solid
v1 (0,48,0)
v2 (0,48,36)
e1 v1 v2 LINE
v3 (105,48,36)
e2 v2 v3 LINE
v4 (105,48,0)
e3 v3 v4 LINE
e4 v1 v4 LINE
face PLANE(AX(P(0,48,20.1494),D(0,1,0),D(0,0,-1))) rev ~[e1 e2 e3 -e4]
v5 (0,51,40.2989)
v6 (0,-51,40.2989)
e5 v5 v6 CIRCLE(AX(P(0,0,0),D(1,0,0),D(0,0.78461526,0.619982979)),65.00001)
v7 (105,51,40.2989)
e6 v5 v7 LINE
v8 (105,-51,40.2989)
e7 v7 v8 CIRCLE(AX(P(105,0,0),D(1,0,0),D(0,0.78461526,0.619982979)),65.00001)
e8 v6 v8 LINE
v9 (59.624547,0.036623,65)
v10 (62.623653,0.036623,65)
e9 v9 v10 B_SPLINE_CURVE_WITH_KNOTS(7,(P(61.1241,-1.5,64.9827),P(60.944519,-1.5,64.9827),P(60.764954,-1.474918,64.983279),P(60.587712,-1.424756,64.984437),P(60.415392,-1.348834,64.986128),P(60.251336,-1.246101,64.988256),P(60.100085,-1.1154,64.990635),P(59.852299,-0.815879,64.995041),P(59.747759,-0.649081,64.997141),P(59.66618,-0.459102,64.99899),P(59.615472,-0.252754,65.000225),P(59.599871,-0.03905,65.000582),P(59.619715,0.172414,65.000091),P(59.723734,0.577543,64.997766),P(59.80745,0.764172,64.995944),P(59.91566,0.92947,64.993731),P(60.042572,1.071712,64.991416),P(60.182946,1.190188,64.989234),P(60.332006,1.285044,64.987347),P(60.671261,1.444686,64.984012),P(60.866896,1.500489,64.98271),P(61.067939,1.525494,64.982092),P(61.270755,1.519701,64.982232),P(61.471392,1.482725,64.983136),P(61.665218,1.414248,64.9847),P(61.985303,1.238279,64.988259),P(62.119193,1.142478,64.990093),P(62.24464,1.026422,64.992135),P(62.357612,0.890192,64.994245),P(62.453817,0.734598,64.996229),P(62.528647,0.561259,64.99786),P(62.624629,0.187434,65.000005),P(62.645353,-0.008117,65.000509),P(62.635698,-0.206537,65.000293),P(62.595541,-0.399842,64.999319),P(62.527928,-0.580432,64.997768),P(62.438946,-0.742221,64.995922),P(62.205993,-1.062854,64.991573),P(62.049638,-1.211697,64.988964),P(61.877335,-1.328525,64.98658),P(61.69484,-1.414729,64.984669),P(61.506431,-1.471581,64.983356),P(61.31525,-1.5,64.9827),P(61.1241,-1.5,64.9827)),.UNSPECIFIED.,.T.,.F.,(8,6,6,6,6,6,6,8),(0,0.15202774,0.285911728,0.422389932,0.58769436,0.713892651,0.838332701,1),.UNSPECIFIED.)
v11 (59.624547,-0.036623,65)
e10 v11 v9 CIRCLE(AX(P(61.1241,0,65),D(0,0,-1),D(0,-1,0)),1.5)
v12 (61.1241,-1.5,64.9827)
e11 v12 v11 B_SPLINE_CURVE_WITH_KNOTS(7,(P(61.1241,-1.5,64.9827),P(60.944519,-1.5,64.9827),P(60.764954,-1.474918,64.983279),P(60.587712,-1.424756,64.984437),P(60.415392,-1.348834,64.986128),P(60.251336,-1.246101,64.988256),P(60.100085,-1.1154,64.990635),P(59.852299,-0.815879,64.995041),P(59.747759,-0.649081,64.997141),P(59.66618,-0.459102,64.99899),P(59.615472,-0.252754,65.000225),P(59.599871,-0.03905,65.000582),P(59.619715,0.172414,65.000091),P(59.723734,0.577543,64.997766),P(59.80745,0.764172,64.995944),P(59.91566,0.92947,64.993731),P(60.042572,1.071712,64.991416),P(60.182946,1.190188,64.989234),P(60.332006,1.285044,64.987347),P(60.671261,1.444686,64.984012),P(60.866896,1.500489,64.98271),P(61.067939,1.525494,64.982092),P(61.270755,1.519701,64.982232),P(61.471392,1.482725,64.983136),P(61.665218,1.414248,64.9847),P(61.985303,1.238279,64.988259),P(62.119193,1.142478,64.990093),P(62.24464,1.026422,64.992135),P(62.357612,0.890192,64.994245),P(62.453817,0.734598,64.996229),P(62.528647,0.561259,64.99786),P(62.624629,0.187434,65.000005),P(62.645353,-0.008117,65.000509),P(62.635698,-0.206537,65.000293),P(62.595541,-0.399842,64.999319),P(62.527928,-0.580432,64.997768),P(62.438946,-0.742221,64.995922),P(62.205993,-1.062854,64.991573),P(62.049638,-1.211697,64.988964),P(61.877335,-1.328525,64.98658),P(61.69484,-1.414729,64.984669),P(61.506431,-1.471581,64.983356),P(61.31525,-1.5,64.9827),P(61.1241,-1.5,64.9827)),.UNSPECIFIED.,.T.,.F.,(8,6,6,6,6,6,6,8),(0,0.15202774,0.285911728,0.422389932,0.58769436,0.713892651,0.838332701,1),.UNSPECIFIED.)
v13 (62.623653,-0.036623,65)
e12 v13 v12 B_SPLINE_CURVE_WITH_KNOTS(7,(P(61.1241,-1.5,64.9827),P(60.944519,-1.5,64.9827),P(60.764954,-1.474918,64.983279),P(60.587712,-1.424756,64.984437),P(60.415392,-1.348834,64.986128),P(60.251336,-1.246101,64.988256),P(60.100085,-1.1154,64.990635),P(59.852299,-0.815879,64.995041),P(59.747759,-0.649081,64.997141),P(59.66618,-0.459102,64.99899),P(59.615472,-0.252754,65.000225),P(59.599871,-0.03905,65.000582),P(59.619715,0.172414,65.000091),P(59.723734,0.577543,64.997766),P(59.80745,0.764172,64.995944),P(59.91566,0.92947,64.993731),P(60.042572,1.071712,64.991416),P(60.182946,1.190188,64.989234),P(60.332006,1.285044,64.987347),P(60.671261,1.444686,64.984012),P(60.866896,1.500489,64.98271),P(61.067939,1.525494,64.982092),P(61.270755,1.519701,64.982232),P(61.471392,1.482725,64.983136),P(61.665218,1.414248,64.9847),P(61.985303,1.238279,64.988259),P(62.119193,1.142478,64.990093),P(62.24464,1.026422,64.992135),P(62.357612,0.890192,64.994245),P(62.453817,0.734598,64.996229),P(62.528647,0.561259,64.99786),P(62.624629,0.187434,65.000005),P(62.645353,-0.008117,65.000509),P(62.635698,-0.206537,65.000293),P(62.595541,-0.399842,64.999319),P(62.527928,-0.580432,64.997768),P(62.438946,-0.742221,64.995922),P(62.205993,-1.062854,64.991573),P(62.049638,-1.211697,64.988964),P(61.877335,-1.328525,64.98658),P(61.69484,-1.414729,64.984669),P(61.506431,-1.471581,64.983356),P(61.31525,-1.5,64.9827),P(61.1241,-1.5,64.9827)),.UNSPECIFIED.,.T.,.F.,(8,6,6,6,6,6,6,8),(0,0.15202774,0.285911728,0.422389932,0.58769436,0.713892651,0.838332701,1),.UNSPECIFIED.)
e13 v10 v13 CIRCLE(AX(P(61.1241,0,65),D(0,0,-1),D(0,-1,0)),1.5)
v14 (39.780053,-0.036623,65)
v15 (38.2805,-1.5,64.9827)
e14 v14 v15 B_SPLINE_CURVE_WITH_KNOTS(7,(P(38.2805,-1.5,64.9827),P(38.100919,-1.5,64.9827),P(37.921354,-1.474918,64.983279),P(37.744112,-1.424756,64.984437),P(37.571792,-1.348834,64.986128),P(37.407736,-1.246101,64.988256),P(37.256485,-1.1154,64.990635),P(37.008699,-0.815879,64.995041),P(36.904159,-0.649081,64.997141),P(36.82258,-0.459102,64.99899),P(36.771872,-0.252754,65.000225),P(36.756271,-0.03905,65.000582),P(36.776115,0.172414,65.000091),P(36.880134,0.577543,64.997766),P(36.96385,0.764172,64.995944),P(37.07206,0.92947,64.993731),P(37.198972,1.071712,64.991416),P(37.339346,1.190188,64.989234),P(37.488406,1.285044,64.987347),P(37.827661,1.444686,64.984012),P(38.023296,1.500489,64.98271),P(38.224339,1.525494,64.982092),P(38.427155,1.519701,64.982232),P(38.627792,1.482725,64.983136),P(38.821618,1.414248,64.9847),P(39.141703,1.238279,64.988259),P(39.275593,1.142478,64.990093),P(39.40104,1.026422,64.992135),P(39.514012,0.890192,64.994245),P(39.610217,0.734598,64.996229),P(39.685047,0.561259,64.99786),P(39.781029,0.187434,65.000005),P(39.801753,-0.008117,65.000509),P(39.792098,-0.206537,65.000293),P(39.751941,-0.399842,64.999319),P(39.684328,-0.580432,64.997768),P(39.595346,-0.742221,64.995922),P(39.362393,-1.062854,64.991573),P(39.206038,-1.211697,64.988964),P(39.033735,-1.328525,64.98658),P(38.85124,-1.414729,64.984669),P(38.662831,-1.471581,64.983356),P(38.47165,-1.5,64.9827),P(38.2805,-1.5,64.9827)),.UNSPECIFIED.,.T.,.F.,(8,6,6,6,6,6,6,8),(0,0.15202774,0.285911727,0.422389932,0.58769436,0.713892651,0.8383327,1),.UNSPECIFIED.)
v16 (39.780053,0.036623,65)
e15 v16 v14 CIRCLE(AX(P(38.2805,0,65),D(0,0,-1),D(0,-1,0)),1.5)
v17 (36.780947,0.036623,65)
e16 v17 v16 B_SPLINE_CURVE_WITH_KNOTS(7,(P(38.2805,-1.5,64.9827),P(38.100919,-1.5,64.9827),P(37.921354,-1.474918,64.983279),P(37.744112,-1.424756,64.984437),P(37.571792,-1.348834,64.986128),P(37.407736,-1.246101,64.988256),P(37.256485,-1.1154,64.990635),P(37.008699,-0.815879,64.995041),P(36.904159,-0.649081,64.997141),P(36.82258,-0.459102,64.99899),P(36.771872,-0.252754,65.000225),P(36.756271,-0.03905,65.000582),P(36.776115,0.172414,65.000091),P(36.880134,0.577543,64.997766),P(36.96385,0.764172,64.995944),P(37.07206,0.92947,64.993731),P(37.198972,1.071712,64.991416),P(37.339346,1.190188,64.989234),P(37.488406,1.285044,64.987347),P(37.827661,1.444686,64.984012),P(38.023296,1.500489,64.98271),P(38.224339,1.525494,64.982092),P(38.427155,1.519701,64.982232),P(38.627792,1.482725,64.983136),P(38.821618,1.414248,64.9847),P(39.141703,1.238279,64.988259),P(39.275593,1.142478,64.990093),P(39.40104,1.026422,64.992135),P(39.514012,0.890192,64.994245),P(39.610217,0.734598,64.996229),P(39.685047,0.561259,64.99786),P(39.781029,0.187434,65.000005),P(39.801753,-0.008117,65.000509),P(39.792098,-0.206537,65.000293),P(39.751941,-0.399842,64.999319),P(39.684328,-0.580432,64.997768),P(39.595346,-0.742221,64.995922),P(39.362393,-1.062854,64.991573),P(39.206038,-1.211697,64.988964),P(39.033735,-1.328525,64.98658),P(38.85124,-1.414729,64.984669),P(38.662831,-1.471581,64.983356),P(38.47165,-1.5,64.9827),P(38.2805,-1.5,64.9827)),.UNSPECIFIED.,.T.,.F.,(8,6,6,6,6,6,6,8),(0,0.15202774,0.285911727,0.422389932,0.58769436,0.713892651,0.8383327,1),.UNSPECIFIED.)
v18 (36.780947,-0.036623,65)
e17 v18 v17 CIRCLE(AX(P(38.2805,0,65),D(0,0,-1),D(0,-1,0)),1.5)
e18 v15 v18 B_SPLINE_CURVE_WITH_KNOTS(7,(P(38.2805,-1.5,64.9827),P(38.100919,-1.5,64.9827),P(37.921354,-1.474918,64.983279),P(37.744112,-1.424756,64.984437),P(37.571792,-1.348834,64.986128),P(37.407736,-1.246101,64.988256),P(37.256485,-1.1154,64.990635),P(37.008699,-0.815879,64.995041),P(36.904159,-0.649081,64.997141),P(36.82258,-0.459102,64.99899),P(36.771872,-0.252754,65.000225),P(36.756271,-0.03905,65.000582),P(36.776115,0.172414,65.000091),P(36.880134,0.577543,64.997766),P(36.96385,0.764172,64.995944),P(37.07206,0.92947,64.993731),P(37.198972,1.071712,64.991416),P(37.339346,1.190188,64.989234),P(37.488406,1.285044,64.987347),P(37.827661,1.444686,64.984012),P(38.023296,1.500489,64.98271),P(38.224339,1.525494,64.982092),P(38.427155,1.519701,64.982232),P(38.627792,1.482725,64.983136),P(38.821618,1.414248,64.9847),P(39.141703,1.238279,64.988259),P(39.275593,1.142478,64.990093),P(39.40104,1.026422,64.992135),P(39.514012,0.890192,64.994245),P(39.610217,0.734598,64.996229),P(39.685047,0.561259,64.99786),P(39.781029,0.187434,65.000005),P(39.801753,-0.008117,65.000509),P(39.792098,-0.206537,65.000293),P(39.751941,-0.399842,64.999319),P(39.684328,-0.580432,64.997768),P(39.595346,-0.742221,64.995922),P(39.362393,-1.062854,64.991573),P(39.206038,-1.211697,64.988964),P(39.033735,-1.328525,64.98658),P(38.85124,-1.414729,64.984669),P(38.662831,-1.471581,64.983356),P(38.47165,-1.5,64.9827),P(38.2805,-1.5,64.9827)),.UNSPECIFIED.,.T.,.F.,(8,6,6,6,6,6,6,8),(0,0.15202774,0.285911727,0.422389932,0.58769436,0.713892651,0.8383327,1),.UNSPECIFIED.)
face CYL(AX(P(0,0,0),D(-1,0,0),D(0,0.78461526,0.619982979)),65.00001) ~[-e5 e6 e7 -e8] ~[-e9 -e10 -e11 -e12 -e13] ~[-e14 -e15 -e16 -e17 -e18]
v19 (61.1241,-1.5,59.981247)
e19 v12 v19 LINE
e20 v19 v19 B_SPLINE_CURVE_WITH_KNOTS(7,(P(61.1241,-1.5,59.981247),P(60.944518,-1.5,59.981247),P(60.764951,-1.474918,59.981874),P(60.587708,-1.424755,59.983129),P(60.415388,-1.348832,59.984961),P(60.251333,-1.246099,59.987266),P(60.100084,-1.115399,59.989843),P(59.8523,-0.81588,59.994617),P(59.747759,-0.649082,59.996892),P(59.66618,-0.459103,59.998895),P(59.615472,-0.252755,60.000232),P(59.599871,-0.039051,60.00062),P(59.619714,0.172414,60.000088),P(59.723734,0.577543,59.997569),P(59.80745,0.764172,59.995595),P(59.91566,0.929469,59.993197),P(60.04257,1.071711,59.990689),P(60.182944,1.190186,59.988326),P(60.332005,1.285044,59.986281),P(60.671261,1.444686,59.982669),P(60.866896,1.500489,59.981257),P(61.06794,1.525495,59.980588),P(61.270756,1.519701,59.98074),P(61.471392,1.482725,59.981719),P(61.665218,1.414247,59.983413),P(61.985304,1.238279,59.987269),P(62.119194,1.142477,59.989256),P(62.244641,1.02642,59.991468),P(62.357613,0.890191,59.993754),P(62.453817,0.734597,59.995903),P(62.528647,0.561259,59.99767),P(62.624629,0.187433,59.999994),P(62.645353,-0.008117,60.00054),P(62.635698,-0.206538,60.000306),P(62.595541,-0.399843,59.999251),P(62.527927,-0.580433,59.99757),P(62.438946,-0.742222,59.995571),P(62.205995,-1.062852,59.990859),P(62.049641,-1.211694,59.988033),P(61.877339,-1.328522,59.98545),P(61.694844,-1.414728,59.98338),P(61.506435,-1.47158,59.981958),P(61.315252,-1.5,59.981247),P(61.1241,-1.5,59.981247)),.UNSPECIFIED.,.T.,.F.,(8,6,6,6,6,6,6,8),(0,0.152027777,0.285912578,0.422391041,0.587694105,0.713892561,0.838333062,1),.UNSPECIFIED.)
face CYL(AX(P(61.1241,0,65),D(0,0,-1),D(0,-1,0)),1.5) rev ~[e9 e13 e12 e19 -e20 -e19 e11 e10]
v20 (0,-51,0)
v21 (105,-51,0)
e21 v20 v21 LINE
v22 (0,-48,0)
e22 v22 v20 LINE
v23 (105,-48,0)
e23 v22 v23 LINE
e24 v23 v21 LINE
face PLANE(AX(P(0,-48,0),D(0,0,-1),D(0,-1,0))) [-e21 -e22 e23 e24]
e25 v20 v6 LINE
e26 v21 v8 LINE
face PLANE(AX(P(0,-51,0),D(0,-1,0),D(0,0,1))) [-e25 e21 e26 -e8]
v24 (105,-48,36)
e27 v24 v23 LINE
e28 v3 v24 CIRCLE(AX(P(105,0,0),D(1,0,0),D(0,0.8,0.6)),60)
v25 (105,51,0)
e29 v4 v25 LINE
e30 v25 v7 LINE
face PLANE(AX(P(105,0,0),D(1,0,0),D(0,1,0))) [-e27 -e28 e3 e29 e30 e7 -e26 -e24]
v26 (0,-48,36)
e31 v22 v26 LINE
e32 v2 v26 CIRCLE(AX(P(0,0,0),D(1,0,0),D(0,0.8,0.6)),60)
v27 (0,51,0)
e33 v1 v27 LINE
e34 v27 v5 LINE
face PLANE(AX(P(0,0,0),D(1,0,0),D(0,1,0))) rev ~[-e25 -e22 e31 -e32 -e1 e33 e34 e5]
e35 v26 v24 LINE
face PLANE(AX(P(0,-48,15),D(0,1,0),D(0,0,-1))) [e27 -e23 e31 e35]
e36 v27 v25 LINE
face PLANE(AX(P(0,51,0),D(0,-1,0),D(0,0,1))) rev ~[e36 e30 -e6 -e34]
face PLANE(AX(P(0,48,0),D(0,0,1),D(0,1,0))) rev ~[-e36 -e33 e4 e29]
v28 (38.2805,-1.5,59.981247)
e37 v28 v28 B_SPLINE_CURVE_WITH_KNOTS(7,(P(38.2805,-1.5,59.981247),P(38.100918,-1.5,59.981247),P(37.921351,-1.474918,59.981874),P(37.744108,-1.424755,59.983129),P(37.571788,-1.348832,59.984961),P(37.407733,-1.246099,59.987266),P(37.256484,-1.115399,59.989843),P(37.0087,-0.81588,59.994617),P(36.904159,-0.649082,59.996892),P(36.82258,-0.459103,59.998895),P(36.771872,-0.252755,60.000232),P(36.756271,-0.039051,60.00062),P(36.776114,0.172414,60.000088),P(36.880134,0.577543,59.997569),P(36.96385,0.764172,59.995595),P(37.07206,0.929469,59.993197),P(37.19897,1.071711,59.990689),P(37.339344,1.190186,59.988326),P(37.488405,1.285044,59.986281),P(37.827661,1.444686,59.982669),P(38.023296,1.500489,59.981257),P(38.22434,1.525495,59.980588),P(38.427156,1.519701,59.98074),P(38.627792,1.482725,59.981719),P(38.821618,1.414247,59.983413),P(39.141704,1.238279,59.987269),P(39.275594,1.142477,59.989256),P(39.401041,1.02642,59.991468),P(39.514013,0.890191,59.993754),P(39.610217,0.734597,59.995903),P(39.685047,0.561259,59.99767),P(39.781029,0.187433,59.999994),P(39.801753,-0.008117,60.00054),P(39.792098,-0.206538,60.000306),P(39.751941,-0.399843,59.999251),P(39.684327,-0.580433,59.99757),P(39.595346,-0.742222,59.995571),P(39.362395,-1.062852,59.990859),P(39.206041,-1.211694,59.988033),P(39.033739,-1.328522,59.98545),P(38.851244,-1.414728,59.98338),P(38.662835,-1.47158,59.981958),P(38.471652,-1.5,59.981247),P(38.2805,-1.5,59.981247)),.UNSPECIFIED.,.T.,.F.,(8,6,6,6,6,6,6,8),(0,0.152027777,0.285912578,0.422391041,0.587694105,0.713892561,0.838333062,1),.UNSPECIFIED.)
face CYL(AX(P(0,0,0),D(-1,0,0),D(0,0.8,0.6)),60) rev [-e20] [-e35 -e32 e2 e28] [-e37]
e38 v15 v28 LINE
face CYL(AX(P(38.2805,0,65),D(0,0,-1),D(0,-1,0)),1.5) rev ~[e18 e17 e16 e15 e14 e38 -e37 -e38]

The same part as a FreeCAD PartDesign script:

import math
import FreeCAD as App
import Part
import Sketcher

doc = App.newDocument("Part")
params = doc.addObject("Spreadsheet::Sheet", "Params")
for row, (alias, value) in enumerate([
    ("sketch1_radius", "65 mm"),
    ("sketch1_radius2", "60 mm"),
    ("sketch1_width", "3 mm"),
    ("pad1_length", "105 mm"),
    ("sketch2_diameter", "3 mm"),
    ("hole_diameter", "3 mm"),
    ("hole_depth", "10 mm"),
    ("sketch3_diameter", "3 mm"),
    ("hole2_diameter", "3 mm"),
    ("hole2_depth", "10 mm"),
], start=1):
    params.set(f"A{row}", alias)
    params.set(f"B{row}", "=" + value)
    params.setAlias(f"B{row}", alias)

body = doc.addObject("PartDesign::Body", "Body")

sketch1 = body.newObject("Sketcher::SketchObject", "Sketch")
sketch1.AttachmentSupport = (doc.getObject("YZ_Plane"), [""])
sketch1.MapMode = "FlatFace"
sketch1.addGeometry([
    Part.LineSegment(App.Vector(-51, 0, 0), App.Vector(-48, 0, 0)),
    Part.LineSegment(App.Vector(-48, 0, 0), App.Vector(-48, 36, 0)),
    Part.ArcOfCircle(Part.Circle(App.Vector(0, 0, 0), App.Vector(0, 0, 1), 60), math.radians(36.869898), math.radians(143.130102)),
    Part.LineSegment(App.Vector(48, 36, 0), App.Vector(48, 0, 0)),
    Part.LineSegment(App.Vector(48, 0, 0), App.Vector(51, 0, 0)),
    Part.LineSegment(App.Vector(51, 0, 0), App.Vector(51, 40.2989, 0)),
    Part.ArcOfCircle(Part.Circle(App.Vector(0, 0, 0), App.Vector(0, 0, 1), 65.00001), math.radians(38.314891), math.radians(141.685109)),
    Part.LineSegment(App.Vector(-51, 40.2989, 0), App.Vector(-51, 0, 0)),
], False)
sketch1.addConstraint([
    Sketcher.Constraint("Coincident", 0, 2, 1, 1),
    Sketcher.Constraint("Coincident", 1, 2, 2, 2),
    Sketcher.Constraint("Coincident", 2, 1, 3, 1),
    Sketcher.Constraint("Coincident", 3, 2, 4, 1),
    Sketcher.Constraint("Coincident", 4, 2, 5, 1),
    Sketcher.Constraint("Coincident", 5, 2, 6, 1),
    Sketcher.Constraint("Coincident", 6, 2, 7, 1),
    Sketcher.Constraint("Coincident", 7, 2, 0, 1),
    Sketcher.Constraint("Horizontal", 0),
    Sketcher.Constraint("Vertical", 1),
    Sketcher.Constraint("Vertical", 3),
    Sketcher.Constraint("Horizontal", 4),
    Sketcher.Constraint("Vertical", 5),
    Sketcher.Constraint("Vertical", 7),
    Sketcher.Constraint("Coincident", 2, 3, -1, 1),
    Sketcher.Constraint("Coincident", 6, 3, -1, 1),
    Sketcher.Constraint("Symmetric", 0, 2, 3, 2, -1, 1),
    Sketcher.Constraint("Symmetric", 4, 2, 7, 2, -2),
    Sketcher.Constraint("Radius", 6, 65.0),
    Sketcher.Constraint("DistanceX", -1, 1, 4, 2, 51.0),
    Sketcher.Constraint("Radius", 2, 60.0),
    Sketcher.Constraint("DistanceX", 0, 1, 0, 2, 3.0),
])
sketch1.setExpression("Constraints[18]", "Params.sketch1_radius")
sketch1.setExpression("Constraints[20]", "Params.sketch1_radius2")
sketch1.setExpression("Constraints[21]", "Params.sketch1_width")
pad1 = body.newObject("PartDesign::Pad", "Pad")
pad1.Profile = sketch1
pad1.setExpression("Length", "Params.pad1_length")

sketch2 = body.newObject("Sketcher::SketchObject", "Sketch001")
sketch2.AttachmentSupport = (doc.getObject("XY_Plane"), [""])
sketch2.MapMode = "FlatFace"
sketch2.AttachmentOffset = App.Placement(App.Vector(0, 0, 65), App.Rotation())
sketch2.addGeometry(Part.Circle(App.Vector(61.1241, 0, 0), App.Vector(0, 0, 1), 1.5), False)
sketch2.addConstraint([
    Sketcher.Constraint("PointOnObject", 0, 3, -1),
    Sketcher.Constraint("Diameter", 0, 3.0),
    Sketcher.Constraint("DistanceX", -1, 1, 0, 3, 61.124),
])
sketch2.setExpression("Constraints[1]", "Params.sketch2_diameter")
doc.recompute()
hole = body.newObject("PartDesign::Hole", "Hole")
hole.Profile = sketch2
hole.ThreadType = "None"
hole.setExpression("Diameter", "Params.hole_diameter")
hole.DepthType = "Dimension"
hole.setExpression("Depth", "Params.hole_depth")
hole.DrillPoint = "Angled"
hole.DrillPointAngle = 118

sketch3 = body.newObject("Sketcher::SketchObject", "Sketch002")
sketch3.AttachmentSupport = (doc.getObject("XY_Plane"), [""])
sketch3.MapMode = "FlatFace"
sketch3.AttachmentOffset = App.Placement(App.Vector(0, 0, 65), App.Rotation())
sketch3.addGeometry(Part.Circle(App.Vector(38.2805, 0, 0), App.Vector(0, 0, 1), 1.5), False)
sketch3.addConstraint([
    Sketcher.Constraint("PointOnObject", 0, 3, -1),
    Sketcher.Constraint("Diameter", 0, 3.0),
    Sketcher.Constraint("DistanceX", -1, 1, 0, 3, 38.2805),
])
sketch3.setExpression("Constraints[1]", "Params.sketch3_diameter")
doc.recompute()
hole2 = body.newObject("PartDesign::Hole", "Hole001")
hole2.Profile = sketch3
hole2.ThreadType = "None"
hole2.setExpression("Diameter", "Params.hole2_diameter")
hole2.DepthType = "Dimension"
hole2.setExpression("Depth", "Params.hole2_depth")
hole2.DrillPoint = "Angled"
hole2.DrillPointAngle = 118

doc.recompute()
